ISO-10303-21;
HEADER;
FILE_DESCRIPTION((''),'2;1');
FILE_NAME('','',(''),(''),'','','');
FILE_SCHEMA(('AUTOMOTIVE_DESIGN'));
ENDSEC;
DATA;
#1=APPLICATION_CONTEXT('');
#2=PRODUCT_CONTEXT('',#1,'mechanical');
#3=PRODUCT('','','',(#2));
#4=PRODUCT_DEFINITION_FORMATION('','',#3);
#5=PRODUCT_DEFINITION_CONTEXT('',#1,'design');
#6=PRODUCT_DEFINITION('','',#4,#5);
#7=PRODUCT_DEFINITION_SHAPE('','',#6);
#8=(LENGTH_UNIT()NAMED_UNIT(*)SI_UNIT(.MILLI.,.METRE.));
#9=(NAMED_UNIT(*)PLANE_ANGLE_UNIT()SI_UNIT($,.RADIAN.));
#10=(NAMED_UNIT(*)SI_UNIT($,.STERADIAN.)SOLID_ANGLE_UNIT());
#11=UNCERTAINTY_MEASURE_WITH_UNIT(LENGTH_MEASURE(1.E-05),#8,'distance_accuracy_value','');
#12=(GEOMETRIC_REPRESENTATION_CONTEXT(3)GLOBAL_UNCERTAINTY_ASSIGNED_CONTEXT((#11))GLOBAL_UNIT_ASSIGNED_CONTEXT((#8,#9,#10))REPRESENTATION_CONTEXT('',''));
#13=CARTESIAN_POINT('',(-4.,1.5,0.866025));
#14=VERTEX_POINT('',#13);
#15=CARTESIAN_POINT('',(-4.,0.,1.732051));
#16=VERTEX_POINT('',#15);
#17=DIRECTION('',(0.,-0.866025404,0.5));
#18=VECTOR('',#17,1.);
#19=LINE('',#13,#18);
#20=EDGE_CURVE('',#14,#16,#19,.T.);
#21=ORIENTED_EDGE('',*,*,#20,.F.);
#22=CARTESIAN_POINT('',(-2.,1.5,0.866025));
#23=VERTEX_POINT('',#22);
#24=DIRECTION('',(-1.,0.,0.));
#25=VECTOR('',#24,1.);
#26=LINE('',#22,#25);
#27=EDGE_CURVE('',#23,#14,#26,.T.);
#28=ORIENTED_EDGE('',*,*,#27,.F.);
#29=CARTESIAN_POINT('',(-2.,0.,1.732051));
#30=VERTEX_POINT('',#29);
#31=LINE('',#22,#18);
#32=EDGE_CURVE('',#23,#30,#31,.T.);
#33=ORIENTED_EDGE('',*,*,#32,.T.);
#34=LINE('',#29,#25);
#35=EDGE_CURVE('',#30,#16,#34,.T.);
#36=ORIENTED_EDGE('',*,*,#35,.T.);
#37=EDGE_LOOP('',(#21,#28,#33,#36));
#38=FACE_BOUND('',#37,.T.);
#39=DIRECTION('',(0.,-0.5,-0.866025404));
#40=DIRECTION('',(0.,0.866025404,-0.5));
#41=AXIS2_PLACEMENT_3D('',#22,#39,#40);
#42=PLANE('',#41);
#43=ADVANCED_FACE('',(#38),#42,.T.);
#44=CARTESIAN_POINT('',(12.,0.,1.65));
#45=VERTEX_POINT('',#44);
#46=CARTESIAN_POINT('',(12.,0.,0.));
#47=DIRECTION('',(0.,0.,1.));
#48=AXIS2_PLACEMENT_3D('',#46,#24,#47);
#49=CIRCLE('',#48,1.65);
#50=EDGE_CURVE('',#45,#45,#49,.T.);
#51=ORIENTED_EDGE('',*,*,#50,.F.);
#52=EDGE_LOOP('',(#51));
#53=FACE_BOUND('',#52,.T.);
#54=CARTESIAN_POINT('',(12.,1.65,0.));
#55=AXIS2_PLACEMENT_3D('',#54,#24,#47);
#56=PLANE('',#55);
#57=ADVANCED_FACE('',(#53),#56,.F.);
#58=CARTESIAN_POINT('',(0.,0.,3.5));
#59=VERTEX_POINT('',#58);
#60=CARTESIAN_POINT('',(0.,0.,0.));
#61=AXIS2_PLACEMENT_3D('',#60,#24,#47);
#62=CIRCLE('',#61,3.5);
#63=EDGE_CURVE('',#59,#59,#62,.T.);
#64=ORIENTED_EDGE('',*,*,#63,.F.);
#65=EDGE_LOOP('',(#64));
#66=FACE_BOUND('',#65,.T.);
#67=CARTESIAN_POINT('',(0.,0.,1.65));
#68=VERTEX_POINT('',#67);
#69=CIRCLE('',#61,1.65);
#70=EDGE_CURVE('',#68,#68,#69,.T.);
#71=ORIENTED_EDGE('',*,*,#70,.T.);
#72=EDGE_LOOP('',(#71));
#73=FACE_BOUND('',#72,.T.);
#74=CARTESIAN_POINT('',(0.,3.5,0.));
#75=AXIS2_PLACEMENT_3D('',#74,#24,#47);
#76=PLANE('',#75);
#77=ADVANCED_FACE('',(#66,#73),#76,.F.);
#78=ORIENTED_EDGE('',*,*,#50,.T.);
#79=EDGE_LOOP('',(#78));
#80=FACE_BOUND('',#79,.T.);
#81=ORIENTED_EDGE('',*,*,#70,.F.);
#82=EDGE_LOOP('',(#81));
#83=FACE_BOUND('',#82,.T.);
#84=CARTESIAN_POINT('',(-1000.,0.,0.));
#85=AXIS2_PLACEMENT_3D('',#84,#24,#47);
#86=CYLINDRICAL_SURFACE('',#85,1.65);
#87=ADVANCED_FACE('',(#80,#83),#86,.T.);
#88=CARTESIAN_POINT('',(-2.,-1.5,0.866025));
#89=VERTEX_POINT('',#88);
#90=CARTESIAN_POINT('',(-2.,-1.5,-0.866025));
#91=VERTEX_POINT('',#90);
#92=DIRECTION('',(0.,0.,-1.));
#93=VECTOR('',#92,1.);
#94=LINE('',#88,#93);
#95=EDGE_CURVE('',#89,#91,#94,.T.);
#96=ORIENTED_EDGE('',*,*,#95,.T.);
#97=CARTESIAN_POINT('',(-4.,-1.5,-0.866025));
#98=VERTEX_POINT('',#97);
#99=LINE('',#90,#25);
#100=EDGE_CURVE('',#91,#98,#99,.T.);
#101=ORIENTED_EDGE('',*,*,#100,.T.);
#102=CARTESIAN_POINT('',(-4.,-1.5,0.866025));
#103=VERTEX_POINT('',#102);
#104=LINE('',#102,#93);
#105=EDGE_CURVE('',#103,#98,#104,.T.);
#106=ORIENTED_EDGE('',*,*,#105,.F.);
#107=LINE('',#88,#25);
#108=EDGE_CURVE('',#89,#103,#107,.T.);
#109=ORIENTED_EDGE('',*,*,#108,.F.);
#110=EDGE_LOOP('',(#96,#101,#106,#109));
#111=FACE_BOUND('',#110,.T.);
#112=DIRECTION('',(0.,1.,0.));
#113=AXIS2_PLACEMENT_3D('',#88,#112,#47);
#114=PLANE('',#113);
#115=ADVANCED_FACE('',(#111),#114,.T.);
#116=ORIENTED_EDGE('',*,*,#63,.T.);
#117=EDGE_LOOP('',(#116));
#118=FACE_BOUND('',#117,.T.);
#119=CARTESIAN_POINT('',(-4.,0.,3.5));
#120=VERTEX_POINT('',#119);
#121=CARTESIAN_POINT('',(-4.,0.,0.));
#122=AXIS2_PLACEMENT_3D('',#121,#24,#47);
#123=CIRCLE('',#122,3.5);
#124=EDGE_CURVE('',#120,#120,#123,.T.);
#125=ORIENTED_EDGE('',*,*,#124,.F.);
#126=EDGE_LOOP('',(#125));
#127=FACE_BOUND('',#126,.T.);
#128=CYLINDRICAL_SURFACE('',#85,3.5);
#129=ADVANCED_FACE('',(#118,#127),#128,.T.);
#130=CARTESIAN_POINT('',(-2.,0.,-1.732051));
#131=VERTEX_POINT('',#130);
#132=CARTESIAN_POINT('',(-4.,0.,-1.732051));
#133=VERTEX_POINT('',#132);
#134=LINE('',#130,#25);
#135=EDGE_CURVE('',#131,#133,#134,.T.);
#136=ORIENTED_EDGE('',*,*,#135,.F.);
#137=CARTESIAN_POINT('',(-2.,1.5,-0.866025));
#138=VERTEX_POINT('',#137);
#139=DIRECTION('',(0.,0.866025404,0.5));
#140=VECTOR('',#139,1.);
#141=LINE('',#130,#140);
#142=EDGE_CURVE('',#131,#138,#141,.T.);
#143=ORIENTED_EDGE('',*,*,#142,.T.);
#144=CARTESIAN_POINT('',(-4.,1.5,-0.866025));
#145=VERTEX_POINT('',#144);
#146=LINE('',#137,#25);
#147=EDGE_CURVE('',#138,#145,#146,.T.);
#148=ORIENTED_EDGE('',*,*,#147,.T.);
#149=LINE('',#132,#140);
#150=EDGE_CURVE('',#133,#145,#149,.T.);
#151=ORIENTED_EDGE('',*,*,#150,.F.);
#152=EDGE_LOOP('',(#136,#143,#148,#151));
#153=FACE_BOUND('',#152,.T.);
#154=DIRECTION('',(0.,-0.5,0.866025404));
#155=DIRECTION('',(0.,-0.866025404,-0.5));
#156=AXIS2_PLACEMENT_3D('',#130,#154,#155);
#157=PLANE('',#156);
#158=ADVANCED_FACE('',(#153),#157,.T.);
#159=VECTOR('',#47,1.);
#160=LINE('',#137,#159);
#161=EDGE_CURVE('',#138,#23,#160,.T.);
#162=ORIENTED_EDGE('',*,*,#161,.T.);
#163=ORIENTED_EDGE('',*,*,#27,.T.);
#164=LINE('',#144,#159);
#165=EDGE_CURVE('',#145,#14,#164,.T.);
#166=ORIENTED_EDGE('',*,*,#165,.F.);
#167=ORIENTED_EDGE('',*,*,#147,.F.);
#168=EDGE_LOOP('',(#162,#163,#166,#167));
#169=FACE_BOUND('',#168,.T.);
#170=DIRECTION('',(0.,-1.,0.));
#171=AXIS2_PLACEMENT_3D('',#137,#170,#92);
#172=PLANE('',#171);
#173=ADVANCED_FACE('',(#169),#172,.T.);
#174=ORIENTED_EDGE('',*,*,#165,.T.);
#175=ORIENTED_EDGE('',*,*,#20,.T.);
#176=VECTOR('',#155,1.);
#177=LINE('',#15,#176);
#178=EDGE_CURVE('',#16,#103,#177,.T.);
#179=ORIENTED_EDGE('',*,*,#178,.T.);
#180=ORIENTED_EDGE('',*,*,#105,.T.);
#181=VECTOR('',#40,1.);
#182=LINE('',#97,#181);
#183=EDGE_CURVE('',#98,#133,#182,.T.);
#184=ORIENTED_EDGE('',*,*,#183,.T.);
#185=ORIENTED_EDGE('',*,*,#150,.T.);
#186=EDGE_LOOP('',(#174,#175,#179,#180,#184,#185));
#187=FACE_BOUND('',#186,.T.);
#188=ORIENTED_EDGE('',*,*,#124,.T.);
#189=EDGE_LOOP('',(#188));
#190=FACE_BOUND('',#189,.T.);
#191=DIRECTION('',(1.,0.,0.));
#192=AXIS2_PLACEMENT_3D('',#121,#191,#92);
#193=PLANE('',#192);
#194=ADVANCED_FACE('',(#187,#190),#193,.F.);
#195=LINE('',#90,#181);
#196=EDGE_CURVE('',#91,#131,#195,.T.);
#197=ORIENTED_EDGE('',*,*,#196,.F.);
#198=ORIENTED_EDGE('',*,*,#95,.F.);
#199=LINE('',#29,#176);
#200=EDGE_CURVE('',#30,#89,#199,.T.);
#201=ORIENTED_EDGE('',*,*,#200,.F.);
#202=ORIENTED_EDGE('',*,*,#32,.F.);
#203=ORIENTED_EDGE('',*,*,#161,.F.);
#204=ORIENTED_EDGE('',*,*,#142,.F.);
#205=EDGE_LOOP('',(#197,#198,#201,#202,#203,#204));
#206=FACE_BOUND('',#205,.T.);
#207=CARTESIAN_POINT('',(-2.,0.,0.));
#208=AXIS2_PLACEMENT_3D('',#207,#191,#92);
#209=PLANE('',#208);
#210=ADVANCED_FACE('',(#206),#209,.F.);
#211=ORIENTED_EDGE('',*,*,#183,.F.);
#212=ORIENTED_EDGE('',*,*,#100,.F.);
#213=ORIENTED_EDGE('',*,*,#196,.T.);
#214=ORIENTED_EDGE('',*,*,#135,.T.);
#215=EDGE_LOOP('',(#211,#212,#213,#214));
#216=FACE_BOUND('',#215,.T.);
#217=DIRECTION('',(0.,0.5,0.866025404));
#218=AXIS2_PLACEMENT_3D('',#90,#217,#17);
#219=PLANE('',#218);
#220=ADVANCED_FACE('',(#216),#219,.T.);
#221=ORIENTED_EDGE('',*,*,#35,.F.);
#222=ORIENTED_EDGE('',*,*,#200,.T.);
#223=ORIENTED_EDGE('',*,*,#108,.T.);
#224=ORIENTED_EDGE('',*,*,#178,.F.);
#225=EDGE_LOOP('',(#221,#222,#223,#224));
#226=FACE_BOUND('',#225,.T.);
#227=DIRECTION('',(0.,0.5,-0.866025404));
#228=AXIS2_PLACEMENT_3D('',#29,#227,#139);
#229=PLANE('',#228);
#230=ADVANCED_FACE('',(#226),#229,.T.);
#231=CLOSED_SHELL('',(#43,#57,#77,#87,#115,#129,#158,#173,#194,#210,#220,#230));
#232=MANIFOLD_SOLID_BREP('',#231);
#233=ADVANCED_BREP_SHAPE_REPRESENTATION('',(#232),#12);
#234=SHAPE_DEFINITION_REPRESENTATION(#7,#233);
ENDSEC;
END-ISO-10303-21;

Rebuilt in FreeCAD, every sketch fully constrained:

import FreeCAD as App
import Part
import Sketcher

V = App.Vector
Q = App.Units.Quantity


def add_polygon(sketch, points):
    """Adds a closed chain of lines whose ends are joined by coincident constraints."""
    first, n = sketch.GeometryCount, len(points)
    for a, b in zip(points, points[1:] + points[:1]):
        sketch.addGeometry(Part.LineSegment(App.Vector(*a, 0), App.Vector(*b, 0)), False)
    for i in range(n):
        sketch.addConstraint(Sketcher.Constraint("Coincident", first + i, 2, first + (i + 1) % n, 1))

doc = App.newDocument("Part")
params = doc.addObject("Spreadsheet::Sheet", "Params")
for row, (alias, value) in enumerate([
    ("sketch1_width", "16 mm"),
    ("sketch1_width2", "12 mm"),
    ("sketch1_height", "3.5 mm"),
    ("sketch1_height2", "1.65 mm"),
    ("revolution_angle", "360 deg"),
    ("pocket1_length", "2 mm"),
], start=1):
    params.set(f"A{row}", alias)
    params.set(f"B{row}", "=" + value)
    params.setAlias(f"B{row}", alias)

body = doc.addObject("PartDesign::Body", "Body")

sketch1 = body.newObject("Sketcher::SketchObject", "Sketch")
sketch1.AttachmentSupport = (doc.getObject("XY_Plane"), [""])
sketch1.MapMode = "FlatFace"
add_polygon(sketch1, [(-4, 3.5), (-4, 0), (12, 0), (12, 1.65), (0, 1.65), (0, 3.5)])
sketch1.addConstraint([
    Sketcher.Constraint("Vertical", 0),
    Sketcher.Constraint("Horizontal", 1),
    Sketcher.Constraint("Vertical", 2),
    Sketcher.Constraint("Horizontal", 3),
    Sketcher.Constraint("Vertical", 4),
    Sketcher.Constraint("Horizontal", 5),
    Sketcher.Constraint("PointOnObject", 0, 2, -1),
    Sketcher.Constraint("PointOnObject", 3, 2, -2),
    Sketcher.Constraint("DistanceX", 1, 1, 1, 2, Q("16 mm")),
    Sketcher.Constraint("DistanceX", 3, 2, 3, 1, Q("12 mm")),
    Sketcher.Constraint("DistanceY", 0, 2, 0, 1, Q("3.5 mm")),
    Sketcher.Constraint("DistanceY", 2, 1, 2, 2, Q("1.65 mm")),
])
sketch1.setExpression("Constraints[14]", "Params.sketch1_width")
sketch1.setExpression("Constraints[15]", "Params.sketch1_width2")
sketch1.setExpression("Constraints[16]", "Params.sketch1_height")
sketch1.setExpression("Constraints[17]", "Params.sketch1_height2")
revolution = body.newObject("PartDesign::Revolution", "Revolution")
revolution.Profile = sketch1
revolution.ReferenceAxis = (sketch1, ["H_Axis"])
revolution.setExpression("Angle", "Params.revolution_angle")

sketch2 = body.newObject("Sketcher::SketchObject", "Sketch001")
sketch2.AttachmentSupport = (doc.getObject("YZ_Plane"), [""])
sketch2.MapMode = "FlatFace"
sketch2.AttachmentOffset = App.Placement(V(0, 0, -4), App.Rotation())
add_polygon(sketch2, [(0, -1.732051), (1.5, -0.866025), (1.5, 0.866025), (0, 1.732051), (-1.5, 0.866025), (-1.5, -0.866025)])
sketch2.addConstraint([
    Sketcher.Constraint("Vertical", 1),
    Sketcher.Constraint("Vertical", 4),
    Sketcher.Constraint("Symmetric", 0, 2, 3, 2, -1, 1),
    Sketcher.Constraint("Symmetric", 2, 2, 5, 2, -1, 1),
    Sketcher.Constraint("PointOnObject", 2, 2, -2),
    Sketcher.Constraint("Parallel", 2, 5),
    Sketcher.Constraint("Horizontal", 1, 2, 3, 2),
    Sketcher.Constraint("Angle", 0, Q("30 deg")),
    Sketcher.Constraint("DistanceX", 3, 2, 1, 2, Q("3 mm")),
    Sketcher.Constraint("DistanceY", 1, 1, 1, 2, Q("1.732051 mm")),
])
pocket1 = body.newObject("PartDesign::Pocket", "Pocket")
pocket1.Profile = sketch2
pocket1.setExpression("Length", "Params.pocket1_length")
pocket1.Reversed = True

doc.recompute()
